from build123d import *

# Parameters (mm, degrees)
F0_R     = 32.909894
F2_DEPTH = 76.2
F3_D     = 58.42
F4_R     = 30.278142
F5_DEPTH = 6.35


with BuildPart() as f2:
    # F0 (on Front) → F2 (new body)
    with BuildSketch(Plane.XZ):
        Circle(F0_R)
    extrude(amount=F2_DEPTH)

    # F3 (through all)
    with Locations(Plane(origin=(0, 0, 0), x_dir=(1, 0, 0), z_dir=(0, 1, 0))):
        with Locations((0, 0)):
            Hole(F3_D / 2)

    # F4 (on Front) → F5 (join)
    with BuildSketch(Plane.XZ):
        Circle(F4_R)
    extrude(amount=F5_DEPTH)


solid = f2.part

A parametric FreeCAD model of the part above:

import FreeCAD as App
import Part
import Sketcher

V = App.Vector
Q = App.Units.Quantity

doc = App.newDocument("Part")
params = doc.addObject("Spreadsheet::Sheet", "Params")
for row, (alias, value) in enumerate([
    ("pad1_length", "3 in"),
    ("sketch2_diameter", "2.3 in"),
    ("hole_diameter", "2.3 in"),
    ("pad2_length", "0.25 in"),
], start=1):
    params.set(f"A{row}", alias)
    params.set(f"B{row}", "=" + value)
    params.setAlias(f"B{row}", alias)

body = doc.addObject("PartDesign::Body", "Body")

sketch1 = body.newObject("Sketcher::SketchObject", "Sketch")
sketch1.AttachmentSupport = (doc.getObject("XZ_Plane"), [""])
sketch1.MapMode = "FlatFace"
sketch1.addGeometry(Part.Circle(V(0, 0, 0), V(0, 0, 1), 33), False)
sketch1.addConstraint(Sketcher.Constraint("Coincident", 0, 3, -1, 1))
sketch1.addConstraint(Sketcher.Constraint("Diameter", 0, 65.819788))
pad1 = body.newObject("PartDesign::Pad", "Pad")
pad1.Profile = sketch1
pad1.setExpression("Length", "Params.pad1_length")

sketch2 = body.newObject("Sketcher::SketchObject", "Sketch001")
sketch2.AttachmentSupport = (doc.getObject("XZ_Plane"), [""])
sketch2.MapMode = "FlatFace"
sketch2.addGeometry(Part.Circle(V(0, 0, 0), V(0, 0, 1), 29), False)
sketch2.addConstraint(Sketcher.Constraint("Coincident", 0, 3, -1, 1))
sketch2.addConstraint(Sketcher.Constraint("Diameter", 0, Q("2.3 in")))
sketch2.setExpression("Constraints[1]", "Params.sketch2_diameter")
doc.recompute()
hole = body.newObject("PartDesign::Hole", "Hole")
hole.Profile = sketch2
hole.ThreadType = "None"
hole.setExpression("Diameter", "Params.hole_diameter")
hole.DepthType = "ThroughAll"
hole.Reversed = True

sketch3 = body.newObject("Sketcher::SketchObject", "Sketch002")
sketch3.AttachmentSupport = (doc.getObject("XZ_Plane"), [""])
sketch3.MapMode = "FlatFace"
sketch3.addGeometry(Part.Circle(V(0, 0, 0), V(0, 0, 1), 30), False)
sketch3.addConstraint(Sketcher.Constraint("Coincident", 0, 3, -1, 1))
sketch3.addConstraint(Sketcher.Constraint("Diameter", 0, 60.556284))
pad2 = body.newObject("PartDesign::Pad", "Pad001")
pad2.Profile = sketch3
pad2.setExpression("Length", "Params.pad2_length")

doc.recompute()
